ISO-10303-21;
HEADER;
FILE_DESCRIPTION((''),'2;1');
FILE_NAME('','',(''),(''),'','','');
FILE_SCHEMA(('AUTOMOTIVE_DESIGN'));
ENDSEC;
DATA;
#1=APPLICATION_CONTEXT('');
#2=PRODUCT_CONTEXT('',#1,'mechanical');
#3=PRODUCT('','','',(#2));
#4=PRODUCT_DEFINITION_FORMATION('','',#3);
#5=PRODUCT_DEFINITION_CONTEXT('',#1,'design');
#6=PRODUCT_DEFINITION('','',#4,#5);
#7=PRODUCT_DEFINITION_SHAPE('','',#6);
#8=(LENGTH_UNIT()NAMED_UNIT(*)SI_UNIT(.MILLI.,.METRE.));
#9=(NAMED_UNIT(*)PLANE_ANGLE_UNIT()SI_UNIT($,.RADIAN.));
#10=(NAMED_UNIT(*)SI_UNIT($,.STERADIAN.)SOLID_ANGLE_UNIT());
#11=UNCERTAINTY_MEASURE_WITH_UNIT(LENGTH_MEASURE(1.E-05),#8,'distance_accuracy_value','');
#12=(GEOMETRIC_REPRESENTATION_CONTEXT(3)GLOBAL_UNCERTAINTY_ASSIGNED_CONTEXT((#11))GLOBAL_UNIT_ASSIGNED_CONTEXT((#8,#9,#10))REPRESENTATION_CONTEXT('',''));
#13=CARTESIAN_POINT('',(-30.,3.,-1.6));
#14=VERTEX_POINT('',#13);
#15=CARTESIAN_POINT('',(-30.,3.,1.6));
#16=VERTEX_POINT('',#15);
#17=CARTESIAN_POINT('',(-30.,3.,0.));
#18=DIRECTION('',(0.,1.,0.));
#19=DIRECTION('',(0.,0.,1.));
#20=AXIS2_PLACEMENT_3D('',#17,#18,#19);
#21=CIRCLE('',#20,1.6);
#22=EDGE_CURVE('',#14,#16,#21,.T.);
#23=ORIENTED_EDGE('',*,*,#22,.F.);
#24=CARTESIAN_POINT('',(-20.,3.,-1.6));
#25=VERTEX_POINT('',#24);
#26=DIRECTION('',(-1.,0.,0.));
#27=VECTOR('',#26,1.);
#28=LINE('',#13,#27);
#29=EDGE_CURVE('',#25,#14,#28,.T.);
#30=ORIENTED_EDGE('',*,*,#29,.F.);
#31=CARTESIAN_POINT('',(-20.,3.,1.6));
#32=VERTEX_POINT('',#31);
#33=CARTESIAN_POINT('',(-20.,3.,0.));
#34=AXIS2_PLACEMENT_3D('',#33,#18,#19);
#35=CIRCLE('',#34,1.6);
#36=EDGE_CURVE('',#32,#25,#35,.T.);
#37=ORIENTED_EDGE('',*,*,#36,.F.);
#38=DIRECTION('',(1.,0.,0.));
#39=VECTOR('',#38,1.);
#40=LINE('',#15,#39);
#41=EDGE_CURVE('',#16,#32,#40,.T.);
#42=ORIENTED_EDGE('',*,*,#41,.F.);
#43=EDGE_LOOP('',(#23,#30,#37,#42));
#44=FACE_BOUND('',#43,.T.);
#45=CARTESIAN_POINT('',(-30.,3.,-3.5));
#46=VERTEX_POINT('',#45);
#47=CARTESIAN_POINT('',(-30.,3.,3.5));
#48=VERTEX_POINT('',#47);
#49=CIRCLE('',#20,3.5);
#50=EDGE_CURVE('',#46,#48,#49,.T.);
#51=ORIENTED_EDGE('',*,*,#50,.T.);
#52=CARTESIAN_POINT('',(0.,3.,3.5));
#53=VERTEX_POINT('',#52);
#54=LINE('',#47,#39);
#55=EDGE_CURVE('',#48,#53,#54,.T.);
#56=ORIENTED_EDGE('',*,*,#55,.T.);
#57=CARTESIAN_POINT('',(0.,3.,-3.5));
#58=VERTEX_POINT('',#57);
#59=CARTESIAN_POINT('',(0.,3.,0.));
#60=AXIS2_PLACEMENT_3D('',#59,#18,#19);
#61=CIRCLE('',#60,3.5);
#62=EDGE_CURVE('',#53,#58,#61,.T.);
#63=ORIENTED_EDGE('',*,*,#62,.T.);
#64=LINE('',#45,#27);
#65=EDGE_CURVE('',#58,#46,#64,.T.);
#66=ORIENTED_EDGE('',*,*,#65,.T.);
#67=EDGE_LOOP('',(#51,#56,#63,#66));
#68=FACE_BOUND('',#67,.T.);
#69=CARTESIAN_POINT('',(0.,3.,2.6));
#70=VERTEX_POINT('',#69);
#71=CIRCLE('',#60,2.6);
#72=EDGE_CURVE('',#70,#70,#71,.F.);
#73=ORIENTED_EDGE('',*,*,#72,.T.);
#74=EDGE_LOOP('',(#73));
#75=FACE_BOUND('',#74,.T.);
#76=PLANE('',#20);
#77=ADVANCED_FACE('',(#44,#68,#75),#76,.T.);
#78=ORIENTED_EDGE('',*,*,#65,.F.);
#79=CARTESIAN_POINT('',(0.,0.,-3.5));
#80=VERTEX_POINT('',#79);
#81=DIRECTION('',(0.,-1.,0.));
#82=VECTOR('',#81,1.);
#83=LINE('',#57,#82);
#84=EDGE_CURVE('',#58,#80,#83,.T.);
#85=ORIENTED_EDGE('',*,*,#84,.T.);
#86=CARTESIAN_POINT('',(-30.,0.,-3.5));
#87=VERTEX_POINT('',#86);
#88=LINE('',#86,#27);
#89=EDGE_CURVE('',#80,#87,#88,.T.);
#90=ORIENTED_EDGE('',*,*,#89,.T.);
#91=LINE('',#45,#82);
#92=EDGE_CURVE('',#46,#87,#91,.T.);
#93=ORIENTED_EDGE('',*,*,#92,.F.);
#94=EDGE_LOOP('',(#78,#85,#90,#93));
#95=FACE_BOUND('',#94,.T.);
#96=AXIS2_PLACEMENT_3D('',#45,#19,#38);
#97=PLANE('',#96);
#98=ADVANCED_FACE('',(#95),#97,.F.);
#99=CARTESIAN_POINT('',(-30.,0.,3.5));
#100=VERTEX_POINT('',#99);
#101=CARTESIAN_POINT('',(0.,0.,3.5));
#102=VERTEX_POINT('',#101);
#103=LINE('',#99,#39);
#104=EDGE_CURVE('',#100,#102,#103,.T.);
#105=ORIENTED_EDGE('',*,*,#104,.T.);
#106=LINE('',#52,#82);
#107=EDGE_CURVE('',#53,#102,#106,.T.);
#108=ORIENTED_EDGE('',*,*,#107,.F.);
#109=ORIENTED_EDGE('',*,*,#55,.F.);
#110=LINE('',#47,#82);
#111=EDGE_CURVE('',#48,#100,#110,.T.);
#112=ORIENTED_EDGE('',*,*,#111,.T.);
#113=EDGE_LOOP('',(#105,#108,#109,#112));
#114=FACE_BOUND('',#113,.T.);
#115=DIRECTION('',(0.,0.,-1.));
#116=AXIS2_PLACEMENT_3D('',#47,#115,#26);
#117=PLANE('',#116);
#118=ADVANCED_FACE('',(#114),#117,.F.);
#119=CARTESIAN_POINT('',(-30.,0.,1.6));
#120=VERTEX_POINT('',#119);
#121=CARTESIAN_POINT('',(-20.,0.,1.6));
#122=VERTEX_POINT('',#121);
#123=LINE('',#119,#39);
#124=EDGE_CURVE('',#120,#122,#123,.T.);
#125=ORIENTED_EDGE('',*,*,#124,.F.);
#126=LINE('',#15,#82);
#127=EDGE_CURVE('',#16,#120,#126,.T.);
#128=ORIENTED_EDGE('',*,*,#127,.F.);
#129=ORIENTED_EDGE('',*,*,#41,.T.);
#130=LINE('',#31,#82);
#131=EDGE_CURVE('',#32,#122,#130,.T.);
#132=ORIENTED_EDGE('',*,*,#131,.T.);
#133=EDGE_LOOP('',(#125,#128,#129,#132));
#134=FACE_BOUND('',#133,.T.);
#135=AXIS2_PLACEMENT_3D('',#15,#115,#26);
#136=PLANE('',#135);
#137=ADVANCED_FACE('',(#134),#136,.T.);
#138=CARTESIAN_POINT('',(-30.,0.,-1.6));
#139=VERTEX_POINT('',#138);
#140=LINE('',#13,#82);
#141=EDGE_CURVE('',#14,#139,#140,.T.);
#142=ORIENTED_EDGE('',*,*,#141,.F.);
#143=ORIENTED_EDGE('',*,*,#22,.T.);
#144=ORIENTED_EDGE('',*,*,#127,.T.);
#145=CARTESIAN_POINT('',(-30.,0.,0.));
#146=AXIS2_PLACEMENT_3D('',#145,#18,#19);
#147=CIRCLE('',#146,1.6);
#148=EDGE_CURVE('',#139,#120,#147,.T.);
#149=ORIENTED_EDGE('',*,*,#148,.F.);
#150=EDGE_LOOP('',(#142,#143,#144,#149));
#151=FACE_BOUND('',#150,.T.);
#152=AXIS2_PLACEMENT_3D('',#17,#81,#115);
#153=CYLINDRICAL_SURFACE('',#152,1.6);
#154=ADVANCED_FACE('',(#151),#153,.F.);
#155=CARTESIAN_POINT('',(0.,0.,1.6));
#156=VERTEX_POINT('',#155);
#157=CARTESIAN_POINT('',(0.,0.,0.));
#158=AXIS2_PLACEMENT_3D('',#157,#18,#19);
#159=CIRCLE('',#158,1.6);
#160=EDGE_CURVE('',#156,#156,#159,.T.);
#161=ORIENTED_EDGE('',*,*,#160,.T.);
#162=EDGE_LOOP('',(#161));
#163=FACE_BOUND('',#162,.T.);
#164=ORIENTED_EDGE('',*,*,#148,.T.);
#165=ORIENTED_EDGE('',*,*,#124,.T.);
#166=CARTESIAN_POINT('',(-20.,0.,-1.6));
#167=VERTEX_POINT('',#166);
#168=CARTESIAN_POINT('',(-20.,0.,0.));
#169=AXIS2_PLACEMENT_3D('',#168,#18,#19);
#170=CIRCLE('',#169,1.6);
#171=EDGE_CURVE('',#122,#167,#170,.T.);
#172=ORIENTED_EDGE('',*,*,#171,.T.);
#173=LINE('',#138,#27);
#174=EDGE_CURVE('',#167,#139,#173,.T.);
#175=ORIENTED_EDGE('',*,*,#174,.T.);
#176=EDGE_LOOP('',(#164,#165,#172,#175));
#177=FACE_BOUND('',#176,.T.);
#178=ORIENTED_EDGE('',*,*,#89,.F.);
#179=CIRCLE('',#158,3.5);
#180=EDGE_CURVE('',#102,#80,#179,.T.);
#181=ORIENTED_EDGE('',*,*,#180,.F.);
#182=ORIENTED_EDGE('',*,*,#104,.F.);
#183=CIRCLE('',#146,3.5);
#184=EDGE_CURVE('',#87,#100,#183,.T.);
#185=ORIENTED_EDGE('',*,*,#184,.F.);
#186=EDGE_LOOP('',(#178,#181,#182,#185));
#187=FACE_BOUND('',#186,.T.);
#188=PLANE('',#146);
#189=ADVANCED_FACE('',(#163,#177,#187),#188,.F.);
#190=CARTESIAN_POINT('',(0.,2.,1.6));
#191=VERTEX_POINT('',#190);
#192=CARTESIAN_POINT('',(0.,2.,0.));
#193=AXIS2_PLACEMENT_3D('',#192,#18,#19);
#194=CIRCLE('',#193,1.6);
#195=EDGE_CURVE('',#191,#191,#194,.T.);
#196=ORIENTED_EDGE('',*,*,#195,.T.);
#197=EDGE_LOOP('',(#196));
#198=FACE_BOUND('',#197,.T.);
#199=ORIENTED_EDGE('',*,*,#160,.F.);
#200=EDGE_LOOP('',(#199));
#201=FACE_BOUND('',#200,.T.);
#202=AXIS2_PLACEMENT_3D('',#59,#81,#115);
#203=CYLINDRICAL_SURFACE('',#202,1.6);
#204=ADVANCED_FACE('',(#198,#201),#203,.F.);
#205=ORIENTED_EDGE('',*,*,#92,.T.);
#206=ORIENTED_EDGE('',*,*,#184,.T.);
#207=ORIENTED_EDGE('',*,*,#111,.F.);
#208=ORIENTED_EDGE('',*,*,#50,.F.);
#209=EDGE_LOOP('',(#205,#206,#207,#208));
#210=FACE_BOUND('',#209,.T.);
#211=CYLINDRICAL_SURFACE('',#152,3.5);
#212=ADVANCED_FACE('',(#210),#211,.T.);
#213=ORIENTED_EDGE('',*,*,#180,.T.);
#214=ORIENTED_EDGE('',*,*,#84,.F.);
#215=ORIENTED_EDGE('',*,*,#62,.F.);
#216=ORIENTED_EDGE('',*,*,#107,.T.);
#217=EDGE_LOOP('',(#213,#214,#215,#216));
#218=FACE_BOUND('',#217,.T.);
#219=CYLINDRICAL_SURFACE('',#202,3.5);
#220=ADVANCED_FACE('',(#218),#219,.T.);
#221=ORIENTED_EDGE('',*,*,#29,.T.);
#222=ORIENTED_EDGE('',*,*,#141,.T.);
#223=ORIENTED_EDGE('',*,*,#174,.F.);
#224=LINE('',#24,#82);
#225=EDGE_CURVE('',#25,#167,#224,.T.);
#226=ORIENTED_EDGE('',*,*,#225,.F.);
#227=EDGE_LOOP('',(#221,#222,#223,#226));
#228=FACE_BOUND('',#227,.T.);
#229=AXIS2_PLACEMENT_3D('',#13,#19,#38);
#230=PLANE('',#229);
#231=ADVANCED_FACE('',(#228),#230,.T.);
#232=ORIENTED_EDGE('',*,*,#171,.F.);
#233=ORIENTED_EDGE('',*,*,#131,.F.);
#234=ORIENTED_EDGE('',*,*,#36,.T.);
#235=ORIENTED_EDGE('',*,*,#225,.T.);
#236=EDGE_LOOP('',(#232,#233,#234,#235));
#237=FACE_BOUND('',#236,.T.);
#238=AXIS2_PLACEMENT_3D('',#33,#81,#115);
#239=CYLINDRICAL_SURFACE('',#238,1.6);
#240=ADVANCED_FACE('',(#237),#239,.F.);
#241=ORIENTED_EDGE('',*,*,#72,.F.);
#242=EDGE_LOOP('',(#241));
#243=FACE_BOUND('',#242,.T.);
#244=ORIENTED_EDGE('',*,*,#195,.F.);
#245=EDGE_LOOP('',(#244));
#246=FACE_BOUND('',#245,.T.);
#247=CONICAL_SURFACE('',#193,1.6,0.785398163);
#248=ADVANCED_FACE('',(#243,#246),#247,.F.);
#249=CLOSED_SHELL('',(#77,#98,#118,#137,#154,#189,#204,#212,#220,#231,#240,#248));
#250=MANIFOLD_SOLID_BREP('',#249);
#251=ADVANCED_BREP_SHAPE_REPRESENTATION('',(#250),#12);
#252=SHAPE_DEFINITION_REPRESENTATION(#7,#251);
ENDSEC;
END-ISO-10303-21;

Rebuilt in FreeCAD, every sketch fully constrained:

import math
import FreeCAD as App
import Part
import Sketcher

V = App.Vector


def edges_at(feature, points):
    """Names of the edges that pass closest to the given points."""
    edges = feature.Shape.Edges
    near = lambda p: min(range(len(edges)), key=lambda i: edges[i].distToShape(Part.Vertex(*p))[0])
    return sorted({f"Edge{near(p) + 1}" for p in points})

doc = App.newDocument("Part")
body = doc.addObject("PartDesign::Body", "Body")

# Sketch on XZ plane
sketch1 = body.newObject("Sketcher::SketchObject", "Sketch")
sketch1.AttachmentSupport = (doc.getObject("XZ_Plane"), [""])
sketch1.MapMode = "FlatFace"
sketch1.addGeometry(Part.LineSegment(V(0, -3.5, 0), V(-30, -3.5, 0)), False)
sketch1.addGeometry(Part.ArcOfCircle(Part.Circle(V(-30, 0, 0), V(0, 0, 1), 3.5), math.radians(90), math.radians(270)), False)
sketch1.addGeometry(Part.LineSegment(V(-30, 3.5, 0), V(0, 3.5, 0)), False)
sketch1.addGeometry(Part.ArcOfCircle(Part.Circle(V(0, 0, 0), V(0, 0, 1), 3.5), math.radians(-90), math.radians(90)), False)
sketch1.addGeometry(Part.Circle(V(0, 0, 0), V(0, 0, 1), 1.6), False)
sketch1.addGeometry(Part.LineSegment(V(-30, -1.6, 0), V(-20, -1.6, 0)), False)
sketch1.addGeometry(Part.ArcOfCircle(Part.Circle(V(-20, 0, 0), V(0, 0, 1), 1.6), math.radians(-90), math.radians(90)), False)
sketch1.addGeometry(Part.LineSegment(V(-20, 1.6, 0), V(-30, 1.6, 0)), False)
sketch1.addGeometry(Part.ArcOfCircle(Part.Circle(V(-30, 0, 0), V(0, 0, 1), 1.6), math.radians(90), math.radians(270)), False)
sketch1.addConstraint(Sketcher.Constraint("Tangent", 0, 2, 1, 2))
sketch1.addConstraint(Sketcher.Constraint("Tangent", 1, 1, 2, 1))
sketch1.addConstraint(Sketcher.Constraint("Tangent", 2, 2, 3, 2))
sketch1.addConstraint(Sketcher.Constraint("Tangent", 3, 1, 0, 1))
sketch1.addConstraint(Sketcher.Constraint("Tangent", 5, 2, 6, 1))
sketch1.addConstraint(Sketcher.Constraint("Tangent", 6, 2, 7, 1))
sketch1.addConstraint(Sketcher.Constraint("Tangent", 7, 2, 8, 1))
sketch1.addConstraint(Sketcher.Constraint("Tangent", 8, 2, 5, 1))
sketch1.addConstraint(Sketcher.Constraint("Horizontal", 0))
sketch1.addConstraint(Sketcher.Constraint("Horizontal", 2))
sketch1.addConstraint(Sketcher.Constraint("Horizontal", 5))
sketch1.addConstraint(Sketcher.Constraint("Horizontal", 7))
sketch1.addConstraint(Sketcher.Constraint("Coincident", 3, 3, -1, 1))
sketch1.addConstraint(Sketcher.Constraint("Coincident", 4, 3, -1, 1))
sketch1.addConstraint(Sketcher.Constraint("Coincident", 8, 3, 1, 3))
sketch1.addConstraint(Sketcher.Constraint("Equal", 4, 6))
sketch1.addConstraint(Sketcher.Constraint("Diameter", 4, 3.2))
sketch1.addConstraint(Sketcher.Constraint("Radius", 1, 3.5))
sketch1.addConstraint(Sketcher.Constraint("DistanceX", 0, 2, 0, 1, 30.0))
sketch1.addConstraint(Sketcher.Constraint("DistanceX", 5, 1, 5, 2, 10.0))
pad1 = body.newObject("PartDesign::Pad", "Pad")
pad1.Profile = sketch1
pad1.Length = 3
pad1.Reversed = True
doc.recompute()

chamfer = body.newObject("PartDesign::Chamfer", "Chamfer")
chamfer.Base = (pad1, edges_at(pad1, [(-1.6, 3, 0)]))
chamfer.Size = 1

doc.recompute()
